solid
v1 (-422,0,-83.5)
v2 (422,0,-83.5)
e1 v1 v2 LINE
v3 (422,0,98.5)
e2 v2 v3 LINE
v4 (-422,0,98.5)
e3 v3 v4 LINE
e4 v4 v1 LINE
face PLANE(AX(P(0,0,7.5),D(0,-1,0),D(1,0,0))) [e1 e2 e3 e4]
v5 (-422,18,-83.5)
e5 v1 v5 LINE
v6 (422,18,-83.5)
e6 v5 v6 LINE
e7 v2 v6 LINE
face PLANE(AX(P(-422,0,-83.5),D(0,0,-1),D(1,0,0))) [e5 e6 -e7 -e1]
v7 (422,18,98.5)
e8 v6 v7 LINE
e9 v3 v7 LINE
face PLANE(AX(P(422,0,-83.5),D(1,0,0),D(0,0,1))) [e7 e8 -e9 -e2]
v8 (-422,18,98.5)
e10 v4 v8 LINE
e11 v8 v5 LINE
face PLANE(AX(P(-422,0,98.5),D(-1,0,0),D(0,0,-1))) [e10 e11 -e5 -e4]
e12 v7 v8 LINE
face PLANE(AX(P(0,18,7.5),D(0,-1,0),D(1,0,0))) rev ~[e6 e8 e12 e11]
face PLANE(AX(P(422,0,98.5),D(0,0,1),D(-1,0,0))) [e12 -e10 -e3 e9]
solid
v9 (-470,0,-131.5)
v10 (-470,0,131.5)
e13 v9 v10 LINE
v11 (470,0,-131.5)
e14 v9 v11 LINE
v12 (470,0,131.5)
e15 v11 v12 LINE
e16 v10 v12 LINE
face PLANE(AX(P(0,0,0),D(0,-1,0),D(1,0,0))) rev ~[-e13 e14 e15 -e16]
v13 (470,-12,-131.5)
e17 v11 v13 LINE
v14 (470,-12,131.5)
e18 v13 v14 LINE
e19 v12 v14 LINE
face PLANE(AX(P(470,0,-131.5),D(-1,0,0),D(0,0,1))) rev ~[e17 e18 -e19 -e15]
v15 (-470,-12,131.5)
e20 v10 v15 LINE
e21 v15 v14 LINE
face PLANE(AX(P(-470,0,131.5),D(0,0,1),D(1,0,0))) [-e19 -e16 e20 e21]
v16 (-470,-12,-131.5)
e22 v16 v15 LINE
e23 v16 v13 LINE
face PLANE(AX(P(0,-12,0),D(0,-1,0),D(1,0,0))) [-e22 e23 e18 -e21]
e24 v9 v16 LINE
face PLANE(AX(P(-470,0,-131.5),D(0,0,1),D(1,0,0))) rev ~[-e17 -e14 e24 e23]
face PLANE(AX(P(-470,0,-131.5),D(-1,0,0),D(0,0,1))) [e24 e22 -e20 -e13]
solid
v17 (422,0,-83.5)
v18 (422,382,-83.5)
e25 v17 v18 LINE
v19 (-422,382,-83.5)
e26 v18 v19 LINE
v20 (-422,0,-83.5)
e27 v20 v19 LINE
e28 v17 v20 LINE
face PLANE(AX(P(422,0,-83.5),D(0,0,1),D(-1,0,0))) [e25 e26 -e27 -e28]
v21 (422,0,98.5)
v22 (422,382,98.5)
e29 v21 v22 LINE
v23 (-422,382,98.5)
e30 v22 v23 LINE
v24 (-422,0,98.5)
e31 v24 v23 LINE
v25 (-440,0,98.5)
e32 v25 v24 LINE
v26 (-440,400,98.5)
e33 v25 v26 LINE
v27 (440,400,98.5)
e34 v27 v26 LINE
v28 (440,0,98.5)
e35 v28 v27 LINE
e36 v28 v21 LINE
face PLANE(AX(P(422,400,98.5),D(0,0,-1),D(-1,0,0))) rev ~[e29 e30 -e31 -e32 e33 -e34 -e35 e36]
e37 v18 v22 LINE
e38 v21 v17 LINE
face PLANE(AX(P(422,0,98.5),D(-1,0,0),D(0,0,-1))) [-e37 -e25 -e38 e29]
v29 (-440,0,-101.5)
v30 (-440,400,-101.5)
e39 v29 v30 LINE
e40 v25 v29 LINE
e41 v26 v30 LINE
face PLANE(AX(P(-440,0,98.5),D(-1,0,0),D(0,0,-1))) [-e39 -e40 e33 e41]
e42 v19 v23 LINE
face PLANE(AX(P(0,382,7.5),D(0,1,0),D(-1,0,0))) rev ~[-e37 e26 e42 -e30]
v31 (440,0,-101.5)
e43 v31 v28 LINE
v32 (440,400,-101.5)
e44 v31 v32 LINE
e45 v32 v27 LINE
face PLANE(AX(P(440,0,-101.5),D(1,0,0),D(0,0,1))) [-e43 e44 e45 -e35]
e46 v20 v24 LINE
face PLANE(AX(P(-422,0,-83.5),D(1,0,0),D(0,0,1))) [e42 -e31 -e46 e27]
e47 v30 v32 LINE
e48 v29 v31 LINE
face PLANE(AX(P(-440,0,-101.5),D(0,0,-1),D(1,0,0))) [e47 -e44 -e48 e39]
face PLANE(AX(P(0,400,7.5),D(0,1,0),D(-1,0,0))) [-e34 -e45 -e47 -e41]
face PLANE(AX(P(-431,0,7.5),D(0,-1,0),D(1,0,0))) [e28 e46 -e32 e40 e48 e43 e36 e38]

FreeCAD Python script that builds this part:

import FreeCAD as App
import Part
import Sketcher

V = App.Vector
Q = App.Units.Quantity

doc = App.newDocument("Part")
body = doc.addObject("PartDesign::Body", "Body")

# Sketch on XZ plane
sketch1 = body.newObject("Sketcher::SketchObject", "Sketch")
sketch1.AttachmentSupport = (doc.getObject("XZ_Plane"), [""])
sketch1.MapMode = "FlatFace"
sketch1.addGeometry([
    Part.LineSegment(V(-422, 98, 0), V(-440, 98, 0)),  # 0
    Part.LineSegment(V(-440, 98, 0), V(-440, -102, 0)),  # 1
    Part.LineSegment(V(-440, -102, 0), V(440, -102, 0)),  # 2
    Part.LineSegment(V(440, -102, 0), V(440, 98, 0)),  # 3
    Part.LineSegment(V(440, 98, 0), V(422, 98, 0)),  # 4
    Part.LineSegment(V(422, 98, 0), V(422, -84, 0)),  # 5
    Part.LineSegment(V(422, -84, 0), V(-422, -84, 0)),  # 6
    Part.LineSegment(V(-422, -84, 0), V(-422, 98, 0)),  # 7
], False)
sketch1.addConstraint([
    Sketcher.Constraint("Coincident", 0, 2, 1, 1),
    Sketcher.Constraint("Coincident", 1, 2, 2, 1),
    Sketcher.Constraint("Coincident", 2, 2, 3, 1),
    Sketcher.Constraint("Coincident", 3, 2, 4, 1),
    Sketcher.Constraint("Coincident", 4, 2, 5, 1),
    Sketcher.Constraint("Coincident", 5, 2, 6, 1),
    Sketcher.Constraint("Coincident", 6, 2, 7, 1),
    Sketcher.Constraint("Coincident", 7, 2, 0, 1),
    Sketcher.Constraint("Horizontal", 0),
    Sketcher.Constraint("Vertical", 1),
    Sketcher.Constraint("Horizontal", 2),
    Sketcher.Constraint("Vertical", 3),
    Sketcher.Constraint("Horizontal", 4),
    Sketcher.Constraint("Vertical", 5),
    Sketcher.Constraint("Horizontal", 6),
    Sketcher.Constraint("Vertical", 7),
    Sketcher.Constraint("Symmetric", 0, 2, 3, 2, -2),
    Sketcher.Constraint("Equal", 0, 4),
    Sketcher.Constraint("DistanceX", 0, 2, 0, 1, Q("18 mm")),
    Sketcher.Constraint("DistanceX", 2, 1, 2, 2, Q("880 mm")),
    Sketcher.Constraint("DistanceY", 1, 2, 1, 1, Q("200 mm")),
    Sketcher.Constraint("DistanceY", 5, 2, 5, 1, Q("182 mm")),
    Sketcher.Constraint("DistanceY", -1, 1, 0, 2, Q("98.5 mm")),
])
pad1 = body.newObject("PartDesign::Pad", "Pad")
pad1.Profile = sketch1
pad1.Length = 400
pad1.Reversed = True

# Sketch on XZ plane
sketch2 = body.newObject("Sketcher::SketchObject", "Sketch001")
sketch2.AttachmentSupport = (doc.getObject("XZ_Plane"), [""])
sketch2.MapMode = "FlatFace"
sketch2.AttachmentOffset = App.Placement(V(0, 0, -400), App.Rotation())
sketch2.addGeometry([
    Part.LineSegment(V(422, 98, 0), V(422, -84, 0)),
    Part.LineSegment(V(422, -84, 0), V(-422, -84, 0)),
    Part.LineSegment(V(-422, -84, 0), V(-422, 98, 0)),
    Part.LineSegment(V(-422, 98, 0), V(422, 98, 0)),
], False)
sketch2.addConstraint([
    Sketcher.Constraint("Coincident", 0, 2, 1, 1),
    Sketcher.Constraint("Coincident", 1, 2, 2, 1),
    Sketcher.Constraint("Coincident", 2, 2, 3, 1),
    Sketcher.Constraint("Coincident", 3, 2, 0, 1),
    Sketcher.Constraint("Vertical", 0),
    Sketcher.Constraint("Horizontal", 1),
    Sketcher.Constraint("Vertical", 2),
    Sketcher.Constraint("Horizontal", 3),
    Sketcher.Constraint("DistanceX", 1, 2, 1, 1, Q("844 mm")),
    Sketcher.Constraint("DistanceY", 0, 2, 0, 1, Q("182 mm")),
    Sketcher.Constraint("DistanceX", -1, 1, 0, 2, Q("422 mm")),
    Sketcher.Constraint("DistanceY", 0, 2, -1, 1, Q("83.5 mm")),
])
pad2 = body.newObject("PartDesign::Pad", "Pad001")
pad2.Profile = sketch2
pad2.Length = 18
body2 = doc.addObject("PartDesign::Body", "Body001")

# Sketch on XZ plane
sketch3 = body2.newObject("Sketcher::SketchObject", "Sketch002")
sketch3.AttachmentSupport = (doc.getObject("XZ_Plane001"), [""])
sketch3.MapMode = "FlatFace"
sketch3.addGeometry([
    Part.LineSegment(V(-470, 132, 0), V(-470, -132, 0)),
    Part.LineSegment(V(-470, -132, 0), V(470, -132, 0)),
    Part.LineSegment(V(470, -132, 0), V(470, 132, 0)),
    Part.LineSegment(V(470, 132, 0), V(-470, 132, 0)),
], False)
sketch3.addConstraint([
    Sketcher.Constraint("Coincident", 0, 2, 1, 1),
    Sketcher.Constraint("Coincident", 1, 2, 2, 1),
    Sketcher.Constraint("Coincident", 2, 2, 3, 1),
    Sketcher.Constraint("Coincident", 3, 2, 0, 1),
    Sketcher.Constraint("Vertical", 0),
    Sketcher.Constraint("Horizontal", 1),
    Sketcher.Constraint("Vertical", 2),
    Sketcher.Constraint("Horizontal", 3),
    Sketcher.Constraint("Symmetric", 0, 2, 2, 2, -1, 1),
    Sketcher.Constraint("DistanceX", 1, 1, 1, 2, Q("940 mm")),
    Sketcher.Constraint("DistanceY", 0, 2, 0, 1, Q("263 mm")),
])
pad3 = body2.newObject("PartDesign::Pad", "Pad002")
pad3.Profile = sketch3
pad3.Length = 12
body3 = doc.addObject("PartDesign::Body", "Body002")

# Sketch on XZ plane
sketch4 = body3.newObject("Sketcher::SketchObject", "Sketch003")
sketch4.AttachmentSupport = (doc.getObject("XZ_Plane002"), [""])
sketch4.MapMode = "FlatFace"
sketch4.addGeometry([
    Part.LineSegment(V(422, -84, 0), V(422, 98, 0)),
    Part.LineSegment(V(422, 98, 0), V(-422, 98, 0)),
    Part.LineSegment(V(-422, 98, 0), V(-422, -84, 0)),
    Part.LineSegment(V(-422, -84, 0), V(422, -84, 0)),
], False)
sketch4.addConstraint([
    Sketcher.Constraint("Coincident", 0, 2, 1, 1),
    Sketcher.Constraint("Coincident", 1, 2, 2, 1),
    Sketcher.Constraint("Coincident", 2, 2, 3, 1),
    Sketcher.Constraint("Coincident", 3, 2, 0, 1),
    Sketcher.Constraint("Vertical", 0),
    Sketcher.Constraint("Horizontal", 1),
    Sketcher.Constraint("Vertical", 2),
    Sketcher.Constraint("Horizontal", 3),
    Sketcher.Constraint("DistanceX", 1, 2, 1, 1, Q("844 mm")),
    Sketcher.Constraint("DistanceY", 0, 1, 0, 2, Q("182 mm")),
    Sketcher.Constraint("DistanceX", -1, 1, 0, 2, Q("422 mm")),
    Sketcher.Constraint("DistanceY", -1, 1, 0, 2, Q("98.5 mm")),
])
pad4 = body3.newObject("PartDesign::Pad", "Pad003")
pad4.Profile = sketch4
pad4.Length = 18
pad4.Reversed = True

doc.recompute()
